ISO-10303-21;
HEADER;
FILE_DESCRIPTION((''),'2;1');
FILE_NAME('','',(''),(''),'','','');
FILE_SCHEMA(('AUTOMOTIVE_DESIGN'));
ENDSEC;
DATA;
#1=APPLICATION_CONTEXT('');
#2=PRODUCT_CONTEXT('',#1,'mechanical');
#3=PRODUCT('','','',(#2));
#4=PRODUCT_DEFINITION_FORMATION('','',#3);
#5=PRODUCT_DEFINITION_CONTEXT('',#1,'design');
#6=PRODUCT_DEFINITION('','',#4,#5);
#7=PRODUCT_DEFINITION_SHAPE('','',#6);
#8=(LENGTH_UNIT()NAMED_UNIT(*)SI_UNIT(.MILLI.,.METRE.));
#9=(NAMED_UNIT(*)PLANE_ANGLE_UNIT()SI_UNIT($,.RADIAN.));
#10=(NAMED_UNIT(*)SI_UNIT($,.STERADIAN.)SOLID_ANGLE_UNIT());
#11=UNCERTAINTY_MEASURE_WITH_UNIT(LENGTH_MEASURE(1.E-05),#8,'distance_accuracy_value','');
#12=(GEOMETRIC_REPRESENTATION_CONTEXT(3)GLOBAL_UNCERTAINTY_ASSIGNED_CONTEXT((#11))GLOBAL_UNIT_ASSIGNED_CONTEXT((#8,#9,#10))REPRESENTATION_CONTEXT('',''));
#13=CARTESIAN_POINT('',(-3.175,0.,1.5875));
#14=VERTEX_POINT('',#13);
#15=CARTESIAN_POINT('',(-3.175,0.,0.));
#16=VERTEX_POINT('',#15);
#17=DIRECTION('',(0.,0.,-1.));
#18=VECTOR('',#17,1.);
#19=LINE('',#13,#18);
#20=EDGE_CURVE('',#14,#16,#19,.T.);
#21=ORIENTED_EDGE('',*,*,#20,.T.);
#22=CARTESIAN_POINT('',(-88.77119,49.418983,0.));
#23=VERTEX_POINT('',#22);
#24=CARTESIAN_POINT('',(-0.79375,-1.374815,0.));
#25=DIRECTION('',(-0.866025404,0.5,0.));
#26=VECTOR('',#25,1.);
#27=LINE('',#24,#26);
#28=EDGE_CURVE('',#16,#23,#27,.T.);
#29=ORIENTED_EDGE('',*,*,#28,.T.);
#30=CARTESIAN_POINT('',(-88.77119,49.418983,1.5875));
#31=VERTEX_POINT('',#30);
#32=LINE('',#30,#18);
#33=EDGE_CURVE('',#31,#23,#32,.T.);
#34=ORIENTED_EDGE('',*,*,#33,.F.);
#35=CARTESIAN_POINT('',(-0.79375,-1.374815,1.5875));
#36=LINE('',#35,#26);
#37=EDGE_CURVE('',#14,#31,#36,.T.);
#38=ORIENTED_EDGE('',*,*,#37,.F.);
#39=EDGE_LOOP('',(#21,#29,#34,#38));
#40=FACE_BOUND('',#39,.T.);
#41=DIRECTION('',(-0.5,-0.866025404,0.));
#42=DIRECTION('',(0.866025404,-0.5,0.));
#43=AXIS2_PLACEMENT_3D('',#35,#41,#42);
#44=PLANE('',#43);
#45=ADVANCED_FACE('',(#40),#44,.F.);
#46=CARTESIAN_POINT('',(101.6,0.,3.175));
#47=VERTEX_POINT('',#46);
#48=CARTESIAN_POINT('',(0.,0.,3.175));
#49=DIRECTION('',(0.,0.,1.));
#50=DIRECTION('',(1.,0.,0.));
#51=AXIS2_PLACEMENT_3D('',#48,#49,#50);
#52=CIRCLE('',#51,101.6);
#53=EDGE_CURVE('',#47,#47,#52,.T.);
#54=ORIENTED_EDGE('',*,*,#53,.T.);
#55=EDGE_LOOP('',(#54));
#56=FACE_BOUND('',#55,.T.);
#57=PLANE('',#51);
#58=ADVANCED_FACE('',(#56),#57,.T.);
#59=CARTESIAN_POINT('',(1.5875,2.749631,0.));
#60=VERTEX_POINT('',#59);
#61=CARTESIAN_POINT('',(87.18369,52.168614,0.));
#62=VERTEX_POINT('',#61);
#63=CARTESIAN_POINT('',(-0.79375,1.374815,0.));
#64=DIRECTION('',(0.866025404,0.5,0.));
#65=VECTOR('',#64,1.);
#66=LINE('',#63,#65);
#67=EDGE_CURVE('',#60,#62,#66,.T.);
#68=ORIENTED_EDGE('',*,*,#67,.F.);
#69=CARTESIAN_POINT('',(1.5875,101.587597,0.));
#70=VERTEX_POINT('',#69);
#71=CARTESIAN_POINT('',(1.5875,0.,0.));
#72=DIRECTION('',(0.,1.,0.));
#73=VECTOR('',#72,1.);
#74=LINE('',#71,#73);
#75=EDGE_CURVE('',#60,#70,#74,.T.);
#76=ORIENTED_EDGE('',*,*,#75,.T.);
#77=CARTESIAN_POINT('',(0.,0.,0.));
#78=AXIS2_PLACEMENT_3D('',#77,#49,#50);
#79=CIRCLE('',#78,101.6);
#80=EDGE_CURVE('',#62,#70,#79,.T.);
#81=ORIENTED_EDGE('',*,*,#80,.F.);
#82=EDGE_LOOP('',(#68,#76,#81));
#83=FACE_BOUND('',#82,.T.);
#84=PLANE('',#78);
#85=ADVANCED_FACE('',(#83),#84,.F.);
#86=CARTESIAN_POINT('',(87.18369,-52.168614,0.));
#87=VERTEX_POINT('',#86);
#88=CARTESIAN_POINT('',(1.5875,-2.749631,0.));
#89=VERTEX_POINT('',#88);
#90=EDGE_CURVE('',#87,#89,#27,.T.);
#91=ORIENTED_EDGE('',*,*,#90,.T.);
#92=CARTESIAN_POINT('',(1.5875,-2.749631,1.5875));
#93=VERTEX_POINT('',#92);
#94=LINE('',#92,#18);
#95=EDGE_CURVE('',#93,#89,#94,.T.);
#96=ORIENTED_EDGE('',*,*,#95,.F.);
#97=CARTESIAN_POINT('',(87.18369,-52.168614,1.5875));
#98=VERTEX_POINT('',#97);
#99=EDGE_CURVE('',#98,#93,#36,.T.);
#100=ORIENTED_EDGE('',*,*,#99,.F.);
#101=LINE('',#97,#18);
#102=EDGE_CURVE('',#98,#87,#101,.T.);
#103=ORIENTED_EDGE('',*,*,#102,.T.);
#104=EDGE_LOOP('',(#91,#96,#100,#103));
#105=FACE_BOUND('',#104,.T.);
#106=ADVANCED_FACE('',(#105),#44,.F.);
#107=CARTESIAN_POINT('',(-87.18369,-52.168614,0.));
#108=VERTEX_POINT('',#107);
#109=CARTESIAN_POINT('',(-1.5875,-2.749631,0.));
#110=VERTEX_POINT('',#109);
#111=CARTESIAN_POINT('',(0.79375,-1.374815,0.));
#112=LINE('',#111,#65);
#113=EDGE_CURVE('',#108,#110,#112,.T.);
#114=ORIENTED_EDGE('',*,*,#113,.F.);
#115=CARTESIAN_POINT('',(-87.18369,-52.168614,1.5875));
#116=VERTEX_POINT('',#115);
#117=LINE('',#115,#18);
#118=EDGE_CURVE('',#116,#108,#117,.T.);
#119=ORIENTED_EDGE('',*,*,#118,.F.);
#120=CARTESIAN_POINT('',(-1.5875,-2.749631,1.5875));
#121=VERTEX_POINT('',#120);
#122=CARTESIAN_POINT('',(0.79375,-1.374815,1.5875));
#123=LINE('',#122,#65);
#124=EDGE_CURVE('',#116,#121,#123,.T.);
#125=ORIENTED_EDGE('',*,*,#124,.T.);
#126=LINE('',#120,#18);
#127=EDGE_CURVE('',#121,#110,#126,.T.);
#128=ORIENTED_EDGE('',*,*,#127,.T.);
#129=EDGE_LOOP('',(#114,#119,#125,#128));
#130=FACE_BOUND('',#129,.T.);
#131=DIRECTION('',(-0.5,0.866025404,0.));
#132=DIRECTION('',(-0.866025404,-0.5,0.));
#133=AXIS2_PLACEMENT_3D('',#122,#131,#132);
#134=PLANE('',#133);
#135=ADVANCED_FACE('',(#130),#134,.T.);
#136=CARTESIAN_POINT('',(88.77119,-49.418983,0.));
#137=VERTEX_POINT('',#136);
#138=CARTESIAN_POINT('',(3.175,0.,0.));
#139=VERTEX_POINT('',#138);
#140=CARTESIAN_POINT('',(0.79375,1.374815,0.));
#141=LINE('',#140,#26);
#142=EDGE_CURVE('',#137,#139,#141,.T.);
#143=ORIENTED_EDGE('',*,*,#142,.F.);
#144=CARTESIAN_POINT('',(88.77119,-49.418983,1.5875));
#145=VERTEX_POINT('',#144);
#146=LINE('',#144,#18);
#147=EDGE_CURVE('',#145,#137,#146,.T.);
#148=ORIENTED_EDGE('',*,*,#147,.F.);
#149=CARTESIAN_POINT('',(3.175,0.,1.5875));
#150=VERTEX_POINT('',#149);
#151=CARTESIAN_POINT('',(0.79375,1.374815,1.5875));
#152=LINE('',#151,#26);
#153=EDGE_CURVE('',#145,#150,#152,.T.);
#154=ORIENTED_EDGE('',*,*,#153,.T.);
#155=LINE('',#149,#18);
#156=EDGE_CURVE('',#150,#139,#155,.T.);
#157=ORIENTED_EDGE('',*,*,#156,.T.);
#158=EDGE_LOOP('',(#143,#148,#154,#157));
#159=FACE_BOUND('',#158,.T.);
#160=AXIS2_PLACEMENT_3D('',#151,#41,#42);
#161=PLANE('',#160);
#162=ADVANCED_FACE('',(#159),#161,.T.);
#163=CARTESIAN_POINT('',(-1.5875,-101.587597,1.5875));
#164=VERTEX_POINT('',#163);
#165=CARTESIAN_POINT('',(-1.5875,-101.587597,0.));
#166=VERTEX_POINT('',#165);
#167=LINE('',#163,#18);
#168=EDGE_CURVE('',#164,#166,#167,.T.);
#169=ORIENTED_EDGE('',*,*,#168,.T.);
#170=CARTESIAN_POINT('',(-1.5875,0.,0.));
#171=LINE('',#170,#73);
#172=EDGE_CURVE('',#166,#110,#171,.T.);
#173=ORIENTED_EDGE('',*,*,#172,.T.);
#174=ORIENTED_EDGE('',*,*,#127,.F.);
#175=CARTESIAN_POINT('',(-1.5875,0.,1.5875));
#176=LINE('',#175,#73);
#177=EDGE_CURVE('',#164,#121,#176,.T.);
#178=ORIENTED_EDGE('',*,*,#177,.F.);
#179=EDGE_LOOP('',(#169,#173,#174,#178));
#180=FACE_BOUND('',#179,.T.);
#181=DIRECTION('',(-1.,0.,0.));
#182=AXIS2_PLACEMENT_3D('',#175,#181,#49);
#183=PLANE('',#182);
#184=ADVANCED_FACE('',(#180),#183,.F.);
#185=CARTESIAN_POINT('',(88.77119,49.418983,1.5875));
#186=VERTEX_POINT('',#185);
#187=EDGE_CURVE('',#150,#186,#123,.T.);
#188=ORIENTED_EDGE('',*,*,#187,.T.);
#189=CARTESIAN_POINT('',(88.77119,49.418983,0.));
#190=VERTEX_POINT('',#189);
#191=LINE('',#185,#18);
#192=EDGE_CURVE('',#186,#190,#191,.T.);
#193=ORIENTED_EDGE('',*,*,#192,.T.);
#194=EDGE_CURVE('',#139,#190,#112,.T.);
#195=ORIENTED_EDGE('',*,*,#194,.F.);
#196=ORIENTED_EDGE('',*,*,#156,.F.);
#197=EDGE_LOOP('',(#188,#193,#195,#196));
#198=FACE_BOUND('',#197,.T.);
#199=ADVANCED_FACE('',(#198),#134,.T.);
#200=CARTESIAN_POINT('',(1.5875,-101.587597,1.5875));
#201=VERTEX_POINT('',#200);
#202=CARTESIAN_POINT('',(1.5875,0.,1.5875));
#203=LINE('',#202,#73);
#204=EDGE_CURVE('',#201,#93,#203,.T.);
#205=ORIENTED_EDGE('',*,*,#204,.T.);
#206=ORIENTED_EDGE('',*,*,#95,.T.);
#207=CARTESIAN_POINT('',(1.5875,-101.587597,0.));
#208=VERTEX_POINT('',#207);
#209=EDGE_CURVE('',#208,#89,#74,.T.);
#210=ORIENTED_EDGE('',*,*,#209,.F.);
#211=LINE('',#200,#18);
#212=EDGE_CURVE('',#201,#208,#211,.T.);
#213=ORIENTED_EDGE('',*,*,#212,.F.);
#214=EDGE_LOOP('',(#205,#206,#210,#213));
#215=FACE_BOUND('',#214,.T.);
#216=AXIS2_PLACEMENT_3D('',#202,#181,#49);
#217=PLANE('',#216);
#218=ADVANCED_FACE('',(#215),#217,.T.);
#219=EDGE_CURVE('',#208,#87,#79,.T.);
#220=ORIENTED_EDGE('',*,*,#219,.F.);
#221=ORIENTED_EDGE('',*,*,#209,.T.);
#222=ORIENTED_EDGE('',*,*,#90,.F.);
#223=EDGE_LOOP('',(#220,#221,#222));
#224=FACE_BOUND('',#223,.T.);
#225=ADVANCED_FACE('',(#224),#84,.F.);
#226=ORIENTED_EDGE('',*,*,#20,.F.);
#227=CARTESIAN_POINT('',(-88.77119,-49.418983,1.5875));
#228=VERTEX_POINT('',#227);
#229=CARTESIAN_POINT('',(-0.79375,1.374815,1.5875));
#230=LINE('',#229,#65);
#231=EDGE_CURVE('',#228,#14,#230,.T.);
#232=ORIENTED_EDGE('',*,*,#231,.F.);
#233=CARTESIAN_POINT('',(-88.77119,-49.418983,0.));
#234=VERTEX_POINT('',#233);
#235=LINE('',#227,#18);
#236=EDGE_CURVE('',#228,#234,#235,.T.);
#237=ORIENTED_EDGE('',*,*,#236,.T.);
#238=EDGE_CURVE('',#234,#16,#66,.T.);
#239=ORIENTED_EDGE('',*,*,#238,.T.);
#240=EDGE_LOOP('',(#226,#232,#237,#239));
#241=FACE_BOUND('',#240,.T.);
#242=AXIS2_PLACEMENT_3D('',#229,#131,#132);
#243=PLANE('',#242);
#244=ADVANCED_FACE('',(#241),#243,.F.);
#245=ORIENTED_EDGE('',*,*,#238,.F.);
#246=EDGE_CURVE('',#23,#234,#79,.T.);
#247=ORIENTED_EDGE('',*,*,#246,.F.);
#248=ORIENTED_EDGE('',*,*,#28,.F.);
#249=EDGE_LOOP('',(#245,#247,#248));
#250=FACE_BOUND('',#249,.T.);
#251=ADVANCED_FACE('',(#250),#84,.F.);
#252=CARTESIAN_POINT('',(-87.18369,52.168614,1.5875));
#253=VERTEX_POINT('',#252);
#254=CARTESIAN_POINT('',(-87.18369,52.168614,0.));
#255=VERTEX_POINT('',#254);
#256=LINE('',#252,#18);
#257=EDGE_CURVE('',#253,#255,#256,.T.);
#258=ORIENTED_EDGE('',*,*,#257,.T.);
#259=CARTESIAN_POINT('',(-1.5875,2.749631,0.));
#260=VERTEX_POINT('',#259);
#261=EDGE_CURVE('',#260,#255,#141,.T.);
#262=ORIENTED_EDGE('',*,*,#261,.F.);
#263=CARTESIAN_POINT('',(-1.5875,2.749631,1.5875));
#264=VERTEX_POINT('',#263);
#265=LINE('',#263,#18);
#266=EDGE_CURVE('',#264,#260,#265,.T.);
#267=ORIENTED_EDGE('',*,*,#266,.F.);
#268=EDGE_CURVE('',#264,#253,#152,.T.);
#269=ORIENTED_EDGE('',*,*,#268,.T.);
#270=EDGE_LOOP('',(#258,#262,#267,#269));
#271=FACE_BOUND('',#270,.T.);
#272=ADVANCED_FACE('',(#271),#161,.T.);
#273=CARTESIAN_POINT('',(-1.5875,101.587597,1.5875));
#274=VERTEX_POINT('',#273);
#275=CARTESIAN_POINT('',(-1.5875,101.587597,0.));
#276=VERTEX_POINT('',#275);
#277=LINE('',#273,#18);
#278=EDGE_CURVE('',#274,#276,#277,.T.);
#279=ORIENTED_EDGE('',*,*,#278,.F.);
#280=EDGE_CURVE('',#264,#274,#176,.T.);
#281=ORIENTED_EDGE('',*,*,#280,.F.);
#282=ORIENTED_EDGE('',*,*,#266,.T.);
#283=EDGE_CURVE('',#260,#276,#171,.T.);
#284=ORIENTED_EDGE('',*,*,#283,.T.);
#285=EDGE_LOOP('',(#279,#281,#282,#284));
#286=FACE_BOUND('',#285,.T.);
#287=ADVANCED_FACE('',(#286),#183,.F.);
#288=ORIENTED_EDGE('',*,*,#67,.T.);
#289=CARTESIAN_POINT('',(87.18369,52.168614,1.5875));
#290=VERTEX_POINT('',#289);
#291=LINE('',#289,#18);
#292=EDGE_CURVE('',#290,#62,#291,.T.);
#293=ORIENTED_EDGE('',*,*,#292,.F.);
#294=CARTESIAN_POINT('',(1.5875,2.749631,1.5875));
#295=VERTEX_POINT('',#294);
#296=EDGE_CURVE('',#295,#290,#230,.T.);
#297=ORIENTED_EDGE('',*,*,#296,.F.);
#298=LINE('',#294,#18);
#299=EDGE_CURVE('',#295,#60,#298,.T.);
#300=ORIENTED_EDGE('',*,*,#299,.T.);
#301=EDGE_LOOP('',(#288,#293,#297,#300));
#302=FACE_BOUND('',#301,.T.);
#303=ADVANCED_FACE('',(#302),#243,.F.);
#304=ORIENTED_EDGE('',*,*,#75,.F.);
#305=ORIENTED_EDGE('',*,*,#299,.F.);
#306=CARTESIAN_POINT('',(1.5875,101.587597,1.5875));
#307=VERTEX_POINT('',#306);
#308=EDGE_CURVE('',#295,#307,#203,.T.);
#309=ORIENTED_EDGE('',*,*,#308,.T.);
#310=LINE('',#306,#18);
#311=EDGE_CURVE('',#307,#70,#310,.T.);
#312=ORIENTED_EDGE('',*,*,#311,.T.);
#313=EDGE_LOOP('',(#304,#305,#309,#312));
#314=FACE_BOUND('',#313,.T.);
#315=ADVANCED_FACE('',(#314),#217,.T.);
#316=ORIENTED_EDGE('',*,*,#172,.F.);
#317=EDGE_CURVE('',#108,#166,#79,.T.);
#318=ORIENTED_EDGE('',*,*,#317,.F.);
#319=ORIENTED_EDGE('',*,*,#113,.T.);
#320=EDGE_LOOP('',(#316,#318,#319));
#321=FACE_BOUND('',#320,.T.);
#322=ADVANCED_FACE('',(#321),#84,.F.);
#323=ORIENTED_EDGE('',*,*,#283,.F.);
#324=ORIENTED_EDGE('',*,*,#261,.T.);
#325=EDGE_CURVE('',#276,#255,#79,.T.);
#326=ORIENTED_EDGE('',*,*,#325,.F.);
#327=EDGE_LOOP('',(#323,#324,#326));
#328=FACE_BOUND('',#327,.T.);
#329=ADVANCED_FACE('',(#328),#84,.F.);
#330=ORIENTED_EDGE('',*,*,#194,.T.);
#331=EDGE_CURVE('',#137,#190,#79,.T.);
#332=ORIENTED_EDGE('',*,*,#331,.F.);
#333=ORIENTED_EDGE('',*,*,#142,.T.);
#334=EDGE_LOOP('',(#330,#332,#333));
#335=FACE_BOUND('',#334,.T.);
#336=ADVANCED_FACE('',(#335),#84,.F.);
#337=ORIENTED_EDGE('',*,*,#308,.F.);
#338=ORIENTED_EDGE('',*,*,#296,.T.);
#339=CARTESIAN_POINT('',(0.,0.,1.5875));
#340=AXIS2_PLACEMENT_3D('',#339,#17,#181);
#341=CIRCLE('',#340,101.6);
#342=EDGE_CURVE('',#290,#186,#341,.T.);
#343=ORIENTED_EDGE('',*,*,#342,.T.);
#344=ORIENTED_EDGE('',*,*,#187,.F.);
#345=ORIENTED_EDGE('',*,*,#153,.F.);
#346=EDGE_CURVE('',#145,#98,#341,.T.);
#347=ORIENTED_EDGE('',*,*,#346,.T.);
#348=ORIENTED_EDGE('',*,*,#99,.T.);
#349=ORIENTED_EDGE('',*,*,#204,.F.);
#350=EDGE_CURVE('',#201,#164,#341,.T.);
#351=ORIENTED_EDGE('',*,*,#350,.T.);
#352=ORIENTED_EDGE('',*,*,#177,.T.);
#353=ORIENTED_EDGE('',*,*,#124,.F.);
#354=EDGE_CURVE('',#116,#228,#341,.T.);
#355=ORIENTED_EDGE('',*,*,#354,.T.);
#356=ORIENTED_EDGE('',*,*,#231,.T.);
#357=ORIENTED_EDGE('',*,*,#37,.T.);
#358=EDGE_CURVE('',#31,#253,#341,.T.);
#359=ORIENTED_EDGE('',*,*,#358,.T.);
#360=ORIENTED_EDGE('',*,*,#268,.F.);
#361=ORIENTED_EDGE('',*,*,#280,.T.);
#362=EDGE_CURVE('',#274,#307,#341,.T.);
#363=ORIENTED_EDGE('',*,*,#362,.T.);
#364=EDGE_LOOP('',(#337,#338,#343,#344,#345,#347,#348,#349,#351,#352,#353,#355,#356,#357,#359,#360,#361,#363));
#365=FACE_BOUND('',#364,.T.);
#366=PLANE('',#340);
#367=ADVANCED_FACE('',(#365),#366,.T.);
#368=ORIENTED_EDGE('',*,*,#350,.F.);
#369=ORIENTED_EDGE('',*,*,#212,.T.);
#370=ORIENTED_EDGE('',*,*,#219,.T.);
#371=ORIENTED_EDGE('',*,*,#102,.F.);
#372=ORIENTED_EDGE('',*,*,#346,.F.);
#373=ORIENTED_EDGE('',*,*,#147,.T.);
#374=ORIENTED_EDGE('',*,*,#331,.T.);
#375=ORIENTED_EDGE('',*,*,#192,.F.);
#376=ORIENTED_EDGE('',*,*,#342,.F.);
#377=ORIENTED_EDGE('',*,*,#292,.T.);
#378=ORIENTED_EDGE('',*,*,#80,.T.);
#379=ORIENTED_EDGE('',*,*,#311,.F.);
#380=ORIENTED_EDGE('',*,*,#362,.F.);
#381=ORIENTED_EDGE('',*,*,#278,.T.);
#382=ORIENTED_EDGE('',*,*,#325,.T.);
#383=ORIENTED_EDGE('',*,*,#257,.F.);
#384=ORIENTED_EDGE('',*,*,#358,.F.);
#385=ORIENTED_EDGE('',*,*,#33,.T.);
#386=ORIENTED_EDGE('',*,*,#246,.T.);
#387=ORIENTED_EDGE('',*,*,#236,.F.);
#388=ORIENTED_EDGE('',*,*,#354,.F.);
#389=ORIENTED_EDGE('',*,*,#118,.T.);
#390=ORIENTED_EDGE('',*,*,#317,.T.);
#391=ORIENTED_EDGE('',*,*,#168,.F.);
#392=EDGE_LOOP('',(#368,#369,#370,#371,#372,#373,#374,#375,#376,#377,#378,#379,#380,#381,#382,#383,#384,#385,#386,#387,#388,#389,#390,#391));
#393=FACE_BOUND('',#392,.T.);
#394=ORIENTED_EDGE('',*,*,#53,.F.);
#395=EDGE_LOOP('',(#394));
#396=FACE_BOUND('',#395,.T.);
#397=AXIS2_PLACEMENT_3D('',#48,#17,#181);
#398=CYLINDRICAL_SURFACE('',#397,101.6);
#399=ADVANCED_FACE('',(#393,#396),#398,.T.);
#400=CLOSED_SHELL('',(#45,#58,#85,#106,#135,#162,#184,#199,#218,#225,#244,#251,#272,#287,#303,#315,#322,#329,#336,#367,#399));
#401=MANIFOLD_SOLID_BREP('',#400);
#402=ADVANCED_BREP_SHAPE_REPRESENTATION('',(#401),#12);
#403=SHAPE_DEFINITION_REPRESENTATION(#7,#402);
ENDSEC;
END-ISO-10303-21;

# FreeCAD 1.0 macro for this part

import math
import FreeCAD as App
import Part
import Sketcher
from FreeCAD import Vector
Q = App.Units.Quantity

doc = App.newDocument("Part")
body = doc.addObject("PartDesign::Body", "Body")

# Sketch on XY plane
sketch1 = body.newObject("Sketcher::SketchObject", "Sketch")
sketch1.AttachmentSupport = (doc.getObject("XY_Plane"), [""])
sketch1.MapMode = "FlatFace"
sketch1.addGeometry(Part.Circle(Vector(0, 0, 0), Vector(0, 0, 1), 102), False)
sketch1.addConstraint(Sketcher.Constraint("Coincident", 0, 3, -1, 1))
sketch1.addConstraint(Sketcher.Constraint("Diameter", 0, Q("8 in")))
pad1 = body.newObject("PartDesign::Pad", "Pad")
pad1.Profile = sketch1
pad1.Length = Q("0.125 in")

# Sketch on XY plane
sketch2 = body.newObject("Sketcher::SketchObject", "Sketch001")
sketch2.AttachmentSupport = (doc.getObject("XY_Plane"), [""])
sketch2.MapMode = "FlatFace"
sketch2.addGeometry(Part.ArcOfCircle(Part.Circle(Vector(0, 0, 0), Vector(0, 0, 1), 101.6), math.radians(-30.9), math.radians(-29.1)), False)
sketch2.addGeometry(Part.LineSegment(Vector(87.2, -52.2, 0), Vector(1.6, -2.7, 0)), False)
sketch2.addGeometry(Part.LineSegment(Vector(1.6, -2.7, 0), Vector(1.6, -101.6, 0)), False)
sketch2.addGeometry(Part.ArcOfCircle(Part.Circle(Vector(0, 0, 0), Vector(0, 0, 1), 101.6), math.radians(-90.9), math.radians(-89.1)), False)
sketch2.addGeometry(Part.LineSegment(Vector(-1.6, -101.6, 0), Vector(-1.6, -2.7, 0)), False)
sketch2.addGeometry(Part.LineSegment(Vector(-1.6, -2.7, 0), Vector(-87.2, -52.2, 0)), False)
sketch2.addGeometry(Part.ArcOfCircle(Part.Circle(Vector(0, 0, 0), Vector(0, 0, 1), 101.6), math.radians(-150.9), math.radians(-149.1)), False)
sketch2.addGeometry(Part.LineSegment(Vector(-88.8, -49.4, 0), Vector(-3.2, 0, 0)), False)
sketch2.addGeometry(Part.LineSegment(Vector(-3.2, 0, 0), Vector(-88.8, 49.4, 0)), False)
sketch2.addGeometry(Part.ArcOfCircle(Part.Circle(Vector(0, 0, 0), Vector(0, 0, 1), 101.6), math.radians(149.1), math.radians(150.9)), False)
sketch2.addGeometry(Part.LineSegment(Vector(-87.2, 52.2, 0), Vector(-1.6, 2.7, 0)), False)
sketch2.addGeometry(Part.LineSegment(Vector(-1.6, 2.7, 0), Vector(-1.6, 101.6, 0)), False)
sketch2.addGeometry(Part.ArcOfCircle(Part.Circle(Vector(0, 0, 0), Vector(0, 0, 1), 101.6), math.radians(89.1), math.radians(90.9)), False)
sketch2.addGeometry(Part.LineSegment(Vector(1.6, 101.6, 0), Vector(1.6, 2.7, 0)), False)
sketch2.addGeometry(Part.LineSegment(Vector(1.6, 2.7, 0), Vector(87.2, 52.2, 0)), False)
sketch2.addGeometry(Part.ArcOfCircle(Part.Circle(Vector(0, 0, 0), Vector(0, 0, 1), 101.6), math.radians(29.1), math.radians(30.9)), False)
sketch2.addGeometry(Part.LineSegment(Vector(88.8, 49.4, 0), Vector(3.2, 0, 0)), False)
sketch2.addGeometry(Part.LineSegment(Vector(3.2, 0, 0), Vector(88.8, -49.4, 0)), False)
sketch2.addConstraint(Sketcher.Constraint("Coincident", 0, 1, 1, 1))
sketch2.addConstraint(Sketcher.Constraint("Coincident", 1, 2, 2, 1))
sketch2.addConstraint(Sketcher.Constraint("Coincident", 2, 2, 3, 2))
sketch2.addConstraint(Sketcher.Constraint("Coincident", 3, 1, 4, 1))
sketch2.addConstraint(Sketcher.Constraint("Coincident", 4, 2, 5, 1))
sketch2.addConstraint(Sketcher.Constraint("Coincident", 5, 2, 6, 2))
sketch2.addConstraint(Sketcher.Constraint("Coincident", 6, 1, 7, 1))
sketch2.addConstraint(Sketcher.Constraint("Coincident", 7, 2, 8, 1))
sketch2.addConstraint(Sketcher.Constraint("Coincident", 8, 2, 9, 2))
sketch2.addConstraint(Sketcher.Constraint("Coincident", 9, 1, 10, 1))
sketch2.addConstraint(Sketcher.Constraint("Coincident", 10, 2, 11, 1))
sketch2.addConstraint(Sketcher.Constraint("Coincident", 11, 2, 12, 2))
sketch2.addConstraint(Sketcher.Constraint("Coincident", 12, 1, 13, 1))
sketch2.addConstraint(Sketcher.Constraint("Coincident", 13, 2, 14, 1))
sketch2.addConstraint(Sketcher.Constraint("Coincident", 14, 2, 15, 2))
sketch2.addConstraint(Sketcher.Constraint("Coincident", 15, 1, 16, 1))
sketch2.addConstraint(Sketcher.Constraint("Coincident", 16, 2, 17, 1))
sketch2.addConstraint(Sketcher.Constraint("Coincident", 17, 2, 0, 2))
sketch2.addConstraint(Sketcher.Constraint("Vertical", 2))
sketch2.addConstraint(Sketcher.Constraint("Vertical", 4))
sketch2.addConstraint(Sketcher.Constraint("Vertical", 11))
sketch2.addConstraint(Sketcher.Constraint("Vertical", 13))
sketch2.addConstraint(Sketcher.Constraint("Coincident", 0, 3, -1, 1))
sketch2.addConstraint(Sketcher.Constraint("Coincident", 3, 3, -1, 1))
sketch2.addConstraint(Sketcher.Constraint("Coincident", 6, 3, -1, 1))
sketch2.addConstraint(Sketcher.Constraint("Coincident", 9, 3, -1, 1))
sketch2.addConstraint(Sketcher.Constraint("Coincident", 12, 3, -1, 1))
sketch2.addConstraint(Sketcher.Constraint("Coincident", 15, 3, -1, 1))
sketch2.addConstraint(Sketcher.Constraint("Equal", 0, 6))
sketch2.addConstraint(Sketcher.Constraint("Equal", 6, 9))
sketch2.addConstraint(Sketcher.Constraint("Equal", 3, 12))
sketch2.addConstraint(Sketcher.Constraint("Equal", 9, 15))
sketch2.addConstraint(Sketcher.Constraint("Symmetric", 1, 2, 10, 2, -1, 1))
sketch2.addConstraint(Sketcher.Constraint("Symmetric", 4, 2, 13, 2, -1, 1))
sketch2.addConstraint(Sketcher.Constraint("Symmetric", 7, 2, 16, 2, -1, 1))
sketch2.addConstraint(Sketcher.Constraint("Symmetric", 1, 2, 4, 2, -2))
sketch2.addConstraint(Sketcher.Constraint("PointOnObject", 7, 2, -1))
sketch2.addConstraint(Sketcher.Constraint("Parallel", 5, 7))
sketch2.addConstraint(Sketcher.Constraint("Parallel", 1, 8))
sketch2.addConstraint(Sketcher.Constraint("Parallel", 8, 10))
sketch2.addConstraint(Sketcher.Constraint("Parallel", 7, 14))
sketch2.addConstraint(Sketcher.Constraint("Parallel", 14, 16))
sketch2.addConstraint(Sketcher.Constraint("Parallel", 10, 17))
sketch2.addConstraint(Sketcher.Constraint("Horizontal", 0, 1, 5, 2))
sketch2.addConstraint(Sketcher.Constraint("Equal", 5, 7))
sketch2.addConstraint(Sketcher.Constraint("Radius", 0, Q("4.0000001 in")))
sketch2.addConstraint(Sketcher.Constraint("Radius", 3, Q("3.9999999 in")))
sketch2.addConstraint(Sketcher.Constraint("Angle", 1, Q("150 deg")))
sketch2.addConstraint(Sketcher.Constraint("DistanceX", -1, 1, 1, 2, Q("0.0625 in")))
sketch2.addConstraint(Sketcher.Constraint("DistanceX", 7, 2, -1, 1, Q("0.125 in")))
pocket1 = body.newObject("PartDesign::Pocket", "Pocket")
pocket1.Profile = sketch2
pocket1.Length = Q("0.0625 in")
pocket1.Reversed = True

doc.recompute()
